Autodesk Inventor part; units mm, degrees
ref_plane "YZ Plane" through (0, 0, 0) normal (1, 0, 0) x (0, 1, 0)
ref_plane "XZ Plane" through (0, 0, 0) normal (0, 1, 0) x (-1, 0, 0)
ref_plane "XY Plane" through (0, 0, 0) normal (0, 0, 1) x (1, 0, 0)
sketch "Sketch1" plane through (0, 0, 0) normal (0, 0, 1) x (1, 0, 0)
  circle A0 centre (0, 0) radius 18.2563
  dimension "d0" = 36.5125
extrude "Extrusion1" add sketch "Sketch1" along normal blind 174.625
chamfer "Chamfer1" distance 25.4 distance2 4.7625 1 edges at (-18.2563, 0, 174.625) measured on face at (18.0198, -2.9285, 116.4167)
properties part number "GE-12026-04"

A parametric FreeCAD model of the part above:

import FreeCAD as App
import Part
import Sketcher
from FreeCAD import Vector
Q = App.Units.Quantity


def edges_at(feature, points):
    """Names of the edges that pass closest to the given points."""
    edges = feature.Shape.Edges
    near = lambda p: min(range(len(edges)), key=lambda i: edges[i].distToShape(Part.Vertex(*p))[0])
    return sorted({f"Edge{near(p) + 1}" for p in points})

doc = App.newDocument("Part")
body = doc.addObject("PartDesign::Body", "Body")

sketch1 = doc.addObject("Sketcher::SketchObject", "Sketch")
body.addObject(sketch1)
sketch1.AttachmentSupport = (doc.XY_Plane, [""])
sketch1.MapMode = "FlatFace"
sketch1.addGeometry(Part.Circle(Vector(0, 0, 0), Vector(0, 0, 1), 18.2563), False)
sketch1.addConstraint(Sketcher.Constraint("Coincident", 0, 3, -1, 1))
sketch1.addConstraint(Sketcher.Constraint("Diameter", 0, Q("1.4375 in")))
pad1 = doc.addObject("PartDesign::Pad", "Pad")
body.addObject(pad1)
pad1.Profile = sketch1
pad1.Length = Q("6.875 in")
doc.recompute()

chamfer = doc.addObject("PartDesign::Chamfer", "Chamfer")
body.addObject(chamfer)
chamfer.Base = (pad1, edges_at(pad1, [(-18.256, 0, 174.625)]))
chamfer.ChamferType = "Two distances"
chamfer.Size = Q("1 in")
chamfer.Size2 = Q("0.1875 in")

doc.recompute()
